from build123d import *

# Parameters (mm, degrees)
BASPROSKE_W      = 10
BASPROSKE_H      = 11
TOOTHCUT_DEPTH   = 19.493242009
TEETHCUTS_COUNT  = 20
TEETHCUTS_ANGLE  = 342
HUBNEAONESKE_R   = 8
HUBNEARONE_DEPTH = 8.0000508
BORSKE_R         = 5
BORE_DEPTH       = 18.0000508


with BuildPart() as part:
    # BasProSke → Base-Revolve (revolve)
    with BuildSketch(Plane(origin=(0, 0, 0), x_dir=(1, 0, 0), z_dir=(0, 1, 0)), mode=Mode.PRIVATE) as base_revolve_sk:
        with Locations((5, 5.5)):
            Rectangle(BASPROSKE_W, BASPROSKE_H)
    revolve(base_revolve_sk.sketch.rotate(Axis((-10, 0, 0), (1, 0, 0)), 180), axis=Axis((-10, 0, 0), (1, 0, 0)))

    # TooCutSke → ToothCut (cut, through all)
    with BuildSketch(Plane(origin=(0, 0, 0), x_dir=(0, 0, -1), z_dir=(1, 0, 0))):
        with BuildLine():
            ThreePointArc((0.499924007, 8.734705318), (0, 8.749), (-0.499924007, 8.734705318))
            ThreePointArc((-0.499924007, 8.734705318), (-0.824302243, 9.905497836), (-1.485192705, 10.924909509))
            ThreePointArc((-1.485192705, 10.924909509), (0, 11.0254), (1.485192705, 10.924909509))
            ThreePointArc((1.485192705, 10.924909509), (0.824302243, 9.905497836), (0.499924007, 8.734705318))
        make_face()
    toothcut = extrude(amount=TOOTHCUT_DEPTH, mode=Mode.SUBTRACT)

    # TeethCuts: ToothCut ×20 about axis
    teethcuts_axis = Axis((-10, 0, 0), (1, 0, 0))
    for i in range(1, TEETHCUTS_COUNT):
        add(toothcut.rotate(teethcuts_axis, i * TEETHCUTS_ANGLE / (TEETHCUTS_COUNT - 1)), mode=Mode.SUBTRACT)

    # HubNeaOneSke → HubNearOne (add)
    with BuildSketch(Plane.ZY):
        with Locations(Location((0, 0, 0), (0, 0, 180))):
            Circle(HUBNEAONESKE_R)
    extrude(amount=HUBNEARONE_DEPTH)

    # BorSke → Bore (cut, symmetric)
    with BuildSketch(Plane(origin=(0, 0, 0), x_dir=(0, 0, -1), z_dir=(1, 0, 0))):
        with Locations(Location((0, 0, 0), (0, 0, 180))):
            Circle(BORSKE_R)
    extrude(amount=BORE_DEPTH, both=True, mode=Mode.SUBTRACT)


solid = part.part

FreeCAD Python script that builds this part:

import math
import FreeCAD as App
import Part
import Sketcher

V = App.Vector


def add_polygon(sketch, points):
    """Adds a closed chain of lines whose ends are joined by coincident constraints."""
    first, n = sketch.GeometryCount, len(points)
    for a, b in zip(points, points[1:] + points[:1]):
        sketch.addGeometry(Part.LineSegment(App.Vector(*a, 0), App.Vector(*b, 0)), False)
    for i in range(n):
        sketch.addConstraint(Sketcher.Constraint("Coincident", first + i, 2, first + (i + 1) % n, 1))

doc = App.newDocument("Part")
body = doc.addObject("PartDesign::Body", "Body")

# Sketch on XZ plane
sketch1 = body.newObject("Sketcher::SketchObject", "Sketch")
sketch1.AttachmentSupport = (doc.getObject("XZ_Plane"), [""])
sketch1.MapMode = "FlatFace"
add_polygon(sketch1, [(0, -11), (0, 0), (10, 0), (10, -11)])  # lines 0-3
sketch1.addConstraint(Sketcher.Constraint("Vertical", 0))
sketch1.addConstraint(Sketcher.Constraint("Horizontal", 1))
sketch1.addConstraint(Sketcher.Constraint("Vertical", 2))
sketch1.addConstraint(Sketcher.Constraint("Horizontal", 3))
sketch1.addConstraint(Sketcher.Constraint("Coincident", 0, 2, -1, 1))
sketch1.addConstraint(Sketcher.Constraint("DistanceX", 1, 1, 1, 2, 10.0))
sketch1.addConstraint(Sketcher.Constraint("DistanceY", 0, 1, 0, 2, 11.0))
revolution = body.newObject("PartDesign::Revolution", "Revolution")
revolution.Profile = sketch1
revolution.ReferenceAxis = (sketch1, ["H_Axis"])
revolution.Angle = 360

# Sketch on YZ plane
sketch2 = body.newObject("Sketcher::SketchObject", "Sketch001")
sketch2.AttachmentSupport = (doc.getObject("YZ_Plane"), [""])
sketch2.MapMode = "FlatFace"
sketch2.addGeometry(Part.ArcOfCircle(Part.Circle(V(0, 0, 0), V(0, 0, 1), 8.749), math.radians(-3.275705), math.radians(3.275705)), False)
sketch2.addGeometry(Part.ArcOfCircle(Part.Circle(V(8.264487, -4.47219, 0), V(0, 0, 1), 4), math.radians(48.309566), math.radians(83.249005)), False)
sketch2.addGeometry(Part.ArcOfCircle(Part.Circle(V(0, 0, 0), V(0, 0, 1), 11.0254), math.radians(-7.741647), math.radians(7.741647)), False)
sketch2.addGeometry(Part.ArcOfCircle(Part.Circle(V(8.264487, 4.47219, 0), V(0, 0, 1), 4), math.radians(-83.249005), math.radians(-48.309566)), False)
sketch2.addConstraint(Sketcher.Constraint("Coincident", 0, 1, 1, 2))
sketch2.addConstraint(Sketcher.Constraint("Coincident", 1, 1, 2, 1))
sketch2.addConstraint(Sketcher.Constraint("Coincident", 2, 2, 3, 2))
sketch2.addConstraint(Sketcher.Constraint("Coincident", 3, 1, 0, 2))
sketch2.addConstraint(Sketcher.Constraint("Coincident", 0, 3, -1, 1))
sketch2.addConstraint(Sketcher.Constraint("Coincident", 2, 3, -1, 1))
sketch2.addConstraint(Sketcher.Constraint("Equal", 1, 3))
sketch2.addConstraint(Sketcher.Constraint("Symmetric", 1, 3, 3, 3, -1))
sketch2.addConstraint(Sketcher.Constraint("Radius", 1, 4.0))
sketch2.addConstraint(Sketcher.Constraint("Radius", 0, 8.749))
sketch2.addConstraint(Sketcher.Constraint("Radius", 2, 11.0254))
sketch2.addConstraint(Sketcher.Constraint("DistanceY", 1, 3, -1, 1, 4.47219))
sketch2.addConstraint(Sketcher.Constraint("DistanceX", -1, 1, 1, 1, 10.92491))
pocket1 = body.newObject("PartDesign::Pocket", "Pocket")
pocket1.Profile = sketch2
pocket1.Type = "ThroughAll"
pocket1.Reversed = True
doc.recompute()

polarpattern = body.newObject("PartDesign::PolarPattern", "PolarPattern")
polarpattern.Originals = [pocket1]
polarpattern.Axis = (doc.getObject("X_Axis"), [""])
polarpattern.Angle = 360
polarpattern.Occurrences = 20
body.Tip = polarpattern

# Sketch on YZ plane
sketch3 = body.newObject("Sketcher::SketchObject", "Sketch002")
sketch3.AttachmentSupport = (doc.getObject("YZ_Plane"), [""])
sketch3.MapMode = "FlatFace"
sketch3.addGeometry(Part.Circle(V(0, 0, 0), V(0, 0, 1), 8), False)
sketch3.addConstraint(Sketcher.Constraint("Coincident", 0, 3, -1, 1))
sketch3.addConstraint(Sketcher.Constraint("Diameter", 0, 16.0))
pad1 = body.newObject("PartDesign::Pad", "Pad")
pad1.Profile = sketch3
pad1.Length = 8.000051
pad1.Reversed = True

# Sketch on YZ plane
sketch4 = body.newObject("Sketcher::SketchObject", "Sketch003")
sketch4.AttachmentSupport = (doc.getObject("YZ_Plane"), [""])
sketch4.MapMode = "FlatFace"
sketch4.addGeometry(Part.Circle(V(0, 0, 0), V(0, 0, 1), 5), False)
sketch4.addConstraint(Sketcher.Constraint("Coincident", 0, 3, -1, 1))
sketch4.addConstraint(Sketcher.Constraint("Diameter", 0, 10.0))
pocket2 = body.newObject("PartDesign::Pocket", "Pocket001")
pocket2.Profile = sketch4
pocket2.Length = 36.000102
pocket2.Midplane = True

doc.recompute()
